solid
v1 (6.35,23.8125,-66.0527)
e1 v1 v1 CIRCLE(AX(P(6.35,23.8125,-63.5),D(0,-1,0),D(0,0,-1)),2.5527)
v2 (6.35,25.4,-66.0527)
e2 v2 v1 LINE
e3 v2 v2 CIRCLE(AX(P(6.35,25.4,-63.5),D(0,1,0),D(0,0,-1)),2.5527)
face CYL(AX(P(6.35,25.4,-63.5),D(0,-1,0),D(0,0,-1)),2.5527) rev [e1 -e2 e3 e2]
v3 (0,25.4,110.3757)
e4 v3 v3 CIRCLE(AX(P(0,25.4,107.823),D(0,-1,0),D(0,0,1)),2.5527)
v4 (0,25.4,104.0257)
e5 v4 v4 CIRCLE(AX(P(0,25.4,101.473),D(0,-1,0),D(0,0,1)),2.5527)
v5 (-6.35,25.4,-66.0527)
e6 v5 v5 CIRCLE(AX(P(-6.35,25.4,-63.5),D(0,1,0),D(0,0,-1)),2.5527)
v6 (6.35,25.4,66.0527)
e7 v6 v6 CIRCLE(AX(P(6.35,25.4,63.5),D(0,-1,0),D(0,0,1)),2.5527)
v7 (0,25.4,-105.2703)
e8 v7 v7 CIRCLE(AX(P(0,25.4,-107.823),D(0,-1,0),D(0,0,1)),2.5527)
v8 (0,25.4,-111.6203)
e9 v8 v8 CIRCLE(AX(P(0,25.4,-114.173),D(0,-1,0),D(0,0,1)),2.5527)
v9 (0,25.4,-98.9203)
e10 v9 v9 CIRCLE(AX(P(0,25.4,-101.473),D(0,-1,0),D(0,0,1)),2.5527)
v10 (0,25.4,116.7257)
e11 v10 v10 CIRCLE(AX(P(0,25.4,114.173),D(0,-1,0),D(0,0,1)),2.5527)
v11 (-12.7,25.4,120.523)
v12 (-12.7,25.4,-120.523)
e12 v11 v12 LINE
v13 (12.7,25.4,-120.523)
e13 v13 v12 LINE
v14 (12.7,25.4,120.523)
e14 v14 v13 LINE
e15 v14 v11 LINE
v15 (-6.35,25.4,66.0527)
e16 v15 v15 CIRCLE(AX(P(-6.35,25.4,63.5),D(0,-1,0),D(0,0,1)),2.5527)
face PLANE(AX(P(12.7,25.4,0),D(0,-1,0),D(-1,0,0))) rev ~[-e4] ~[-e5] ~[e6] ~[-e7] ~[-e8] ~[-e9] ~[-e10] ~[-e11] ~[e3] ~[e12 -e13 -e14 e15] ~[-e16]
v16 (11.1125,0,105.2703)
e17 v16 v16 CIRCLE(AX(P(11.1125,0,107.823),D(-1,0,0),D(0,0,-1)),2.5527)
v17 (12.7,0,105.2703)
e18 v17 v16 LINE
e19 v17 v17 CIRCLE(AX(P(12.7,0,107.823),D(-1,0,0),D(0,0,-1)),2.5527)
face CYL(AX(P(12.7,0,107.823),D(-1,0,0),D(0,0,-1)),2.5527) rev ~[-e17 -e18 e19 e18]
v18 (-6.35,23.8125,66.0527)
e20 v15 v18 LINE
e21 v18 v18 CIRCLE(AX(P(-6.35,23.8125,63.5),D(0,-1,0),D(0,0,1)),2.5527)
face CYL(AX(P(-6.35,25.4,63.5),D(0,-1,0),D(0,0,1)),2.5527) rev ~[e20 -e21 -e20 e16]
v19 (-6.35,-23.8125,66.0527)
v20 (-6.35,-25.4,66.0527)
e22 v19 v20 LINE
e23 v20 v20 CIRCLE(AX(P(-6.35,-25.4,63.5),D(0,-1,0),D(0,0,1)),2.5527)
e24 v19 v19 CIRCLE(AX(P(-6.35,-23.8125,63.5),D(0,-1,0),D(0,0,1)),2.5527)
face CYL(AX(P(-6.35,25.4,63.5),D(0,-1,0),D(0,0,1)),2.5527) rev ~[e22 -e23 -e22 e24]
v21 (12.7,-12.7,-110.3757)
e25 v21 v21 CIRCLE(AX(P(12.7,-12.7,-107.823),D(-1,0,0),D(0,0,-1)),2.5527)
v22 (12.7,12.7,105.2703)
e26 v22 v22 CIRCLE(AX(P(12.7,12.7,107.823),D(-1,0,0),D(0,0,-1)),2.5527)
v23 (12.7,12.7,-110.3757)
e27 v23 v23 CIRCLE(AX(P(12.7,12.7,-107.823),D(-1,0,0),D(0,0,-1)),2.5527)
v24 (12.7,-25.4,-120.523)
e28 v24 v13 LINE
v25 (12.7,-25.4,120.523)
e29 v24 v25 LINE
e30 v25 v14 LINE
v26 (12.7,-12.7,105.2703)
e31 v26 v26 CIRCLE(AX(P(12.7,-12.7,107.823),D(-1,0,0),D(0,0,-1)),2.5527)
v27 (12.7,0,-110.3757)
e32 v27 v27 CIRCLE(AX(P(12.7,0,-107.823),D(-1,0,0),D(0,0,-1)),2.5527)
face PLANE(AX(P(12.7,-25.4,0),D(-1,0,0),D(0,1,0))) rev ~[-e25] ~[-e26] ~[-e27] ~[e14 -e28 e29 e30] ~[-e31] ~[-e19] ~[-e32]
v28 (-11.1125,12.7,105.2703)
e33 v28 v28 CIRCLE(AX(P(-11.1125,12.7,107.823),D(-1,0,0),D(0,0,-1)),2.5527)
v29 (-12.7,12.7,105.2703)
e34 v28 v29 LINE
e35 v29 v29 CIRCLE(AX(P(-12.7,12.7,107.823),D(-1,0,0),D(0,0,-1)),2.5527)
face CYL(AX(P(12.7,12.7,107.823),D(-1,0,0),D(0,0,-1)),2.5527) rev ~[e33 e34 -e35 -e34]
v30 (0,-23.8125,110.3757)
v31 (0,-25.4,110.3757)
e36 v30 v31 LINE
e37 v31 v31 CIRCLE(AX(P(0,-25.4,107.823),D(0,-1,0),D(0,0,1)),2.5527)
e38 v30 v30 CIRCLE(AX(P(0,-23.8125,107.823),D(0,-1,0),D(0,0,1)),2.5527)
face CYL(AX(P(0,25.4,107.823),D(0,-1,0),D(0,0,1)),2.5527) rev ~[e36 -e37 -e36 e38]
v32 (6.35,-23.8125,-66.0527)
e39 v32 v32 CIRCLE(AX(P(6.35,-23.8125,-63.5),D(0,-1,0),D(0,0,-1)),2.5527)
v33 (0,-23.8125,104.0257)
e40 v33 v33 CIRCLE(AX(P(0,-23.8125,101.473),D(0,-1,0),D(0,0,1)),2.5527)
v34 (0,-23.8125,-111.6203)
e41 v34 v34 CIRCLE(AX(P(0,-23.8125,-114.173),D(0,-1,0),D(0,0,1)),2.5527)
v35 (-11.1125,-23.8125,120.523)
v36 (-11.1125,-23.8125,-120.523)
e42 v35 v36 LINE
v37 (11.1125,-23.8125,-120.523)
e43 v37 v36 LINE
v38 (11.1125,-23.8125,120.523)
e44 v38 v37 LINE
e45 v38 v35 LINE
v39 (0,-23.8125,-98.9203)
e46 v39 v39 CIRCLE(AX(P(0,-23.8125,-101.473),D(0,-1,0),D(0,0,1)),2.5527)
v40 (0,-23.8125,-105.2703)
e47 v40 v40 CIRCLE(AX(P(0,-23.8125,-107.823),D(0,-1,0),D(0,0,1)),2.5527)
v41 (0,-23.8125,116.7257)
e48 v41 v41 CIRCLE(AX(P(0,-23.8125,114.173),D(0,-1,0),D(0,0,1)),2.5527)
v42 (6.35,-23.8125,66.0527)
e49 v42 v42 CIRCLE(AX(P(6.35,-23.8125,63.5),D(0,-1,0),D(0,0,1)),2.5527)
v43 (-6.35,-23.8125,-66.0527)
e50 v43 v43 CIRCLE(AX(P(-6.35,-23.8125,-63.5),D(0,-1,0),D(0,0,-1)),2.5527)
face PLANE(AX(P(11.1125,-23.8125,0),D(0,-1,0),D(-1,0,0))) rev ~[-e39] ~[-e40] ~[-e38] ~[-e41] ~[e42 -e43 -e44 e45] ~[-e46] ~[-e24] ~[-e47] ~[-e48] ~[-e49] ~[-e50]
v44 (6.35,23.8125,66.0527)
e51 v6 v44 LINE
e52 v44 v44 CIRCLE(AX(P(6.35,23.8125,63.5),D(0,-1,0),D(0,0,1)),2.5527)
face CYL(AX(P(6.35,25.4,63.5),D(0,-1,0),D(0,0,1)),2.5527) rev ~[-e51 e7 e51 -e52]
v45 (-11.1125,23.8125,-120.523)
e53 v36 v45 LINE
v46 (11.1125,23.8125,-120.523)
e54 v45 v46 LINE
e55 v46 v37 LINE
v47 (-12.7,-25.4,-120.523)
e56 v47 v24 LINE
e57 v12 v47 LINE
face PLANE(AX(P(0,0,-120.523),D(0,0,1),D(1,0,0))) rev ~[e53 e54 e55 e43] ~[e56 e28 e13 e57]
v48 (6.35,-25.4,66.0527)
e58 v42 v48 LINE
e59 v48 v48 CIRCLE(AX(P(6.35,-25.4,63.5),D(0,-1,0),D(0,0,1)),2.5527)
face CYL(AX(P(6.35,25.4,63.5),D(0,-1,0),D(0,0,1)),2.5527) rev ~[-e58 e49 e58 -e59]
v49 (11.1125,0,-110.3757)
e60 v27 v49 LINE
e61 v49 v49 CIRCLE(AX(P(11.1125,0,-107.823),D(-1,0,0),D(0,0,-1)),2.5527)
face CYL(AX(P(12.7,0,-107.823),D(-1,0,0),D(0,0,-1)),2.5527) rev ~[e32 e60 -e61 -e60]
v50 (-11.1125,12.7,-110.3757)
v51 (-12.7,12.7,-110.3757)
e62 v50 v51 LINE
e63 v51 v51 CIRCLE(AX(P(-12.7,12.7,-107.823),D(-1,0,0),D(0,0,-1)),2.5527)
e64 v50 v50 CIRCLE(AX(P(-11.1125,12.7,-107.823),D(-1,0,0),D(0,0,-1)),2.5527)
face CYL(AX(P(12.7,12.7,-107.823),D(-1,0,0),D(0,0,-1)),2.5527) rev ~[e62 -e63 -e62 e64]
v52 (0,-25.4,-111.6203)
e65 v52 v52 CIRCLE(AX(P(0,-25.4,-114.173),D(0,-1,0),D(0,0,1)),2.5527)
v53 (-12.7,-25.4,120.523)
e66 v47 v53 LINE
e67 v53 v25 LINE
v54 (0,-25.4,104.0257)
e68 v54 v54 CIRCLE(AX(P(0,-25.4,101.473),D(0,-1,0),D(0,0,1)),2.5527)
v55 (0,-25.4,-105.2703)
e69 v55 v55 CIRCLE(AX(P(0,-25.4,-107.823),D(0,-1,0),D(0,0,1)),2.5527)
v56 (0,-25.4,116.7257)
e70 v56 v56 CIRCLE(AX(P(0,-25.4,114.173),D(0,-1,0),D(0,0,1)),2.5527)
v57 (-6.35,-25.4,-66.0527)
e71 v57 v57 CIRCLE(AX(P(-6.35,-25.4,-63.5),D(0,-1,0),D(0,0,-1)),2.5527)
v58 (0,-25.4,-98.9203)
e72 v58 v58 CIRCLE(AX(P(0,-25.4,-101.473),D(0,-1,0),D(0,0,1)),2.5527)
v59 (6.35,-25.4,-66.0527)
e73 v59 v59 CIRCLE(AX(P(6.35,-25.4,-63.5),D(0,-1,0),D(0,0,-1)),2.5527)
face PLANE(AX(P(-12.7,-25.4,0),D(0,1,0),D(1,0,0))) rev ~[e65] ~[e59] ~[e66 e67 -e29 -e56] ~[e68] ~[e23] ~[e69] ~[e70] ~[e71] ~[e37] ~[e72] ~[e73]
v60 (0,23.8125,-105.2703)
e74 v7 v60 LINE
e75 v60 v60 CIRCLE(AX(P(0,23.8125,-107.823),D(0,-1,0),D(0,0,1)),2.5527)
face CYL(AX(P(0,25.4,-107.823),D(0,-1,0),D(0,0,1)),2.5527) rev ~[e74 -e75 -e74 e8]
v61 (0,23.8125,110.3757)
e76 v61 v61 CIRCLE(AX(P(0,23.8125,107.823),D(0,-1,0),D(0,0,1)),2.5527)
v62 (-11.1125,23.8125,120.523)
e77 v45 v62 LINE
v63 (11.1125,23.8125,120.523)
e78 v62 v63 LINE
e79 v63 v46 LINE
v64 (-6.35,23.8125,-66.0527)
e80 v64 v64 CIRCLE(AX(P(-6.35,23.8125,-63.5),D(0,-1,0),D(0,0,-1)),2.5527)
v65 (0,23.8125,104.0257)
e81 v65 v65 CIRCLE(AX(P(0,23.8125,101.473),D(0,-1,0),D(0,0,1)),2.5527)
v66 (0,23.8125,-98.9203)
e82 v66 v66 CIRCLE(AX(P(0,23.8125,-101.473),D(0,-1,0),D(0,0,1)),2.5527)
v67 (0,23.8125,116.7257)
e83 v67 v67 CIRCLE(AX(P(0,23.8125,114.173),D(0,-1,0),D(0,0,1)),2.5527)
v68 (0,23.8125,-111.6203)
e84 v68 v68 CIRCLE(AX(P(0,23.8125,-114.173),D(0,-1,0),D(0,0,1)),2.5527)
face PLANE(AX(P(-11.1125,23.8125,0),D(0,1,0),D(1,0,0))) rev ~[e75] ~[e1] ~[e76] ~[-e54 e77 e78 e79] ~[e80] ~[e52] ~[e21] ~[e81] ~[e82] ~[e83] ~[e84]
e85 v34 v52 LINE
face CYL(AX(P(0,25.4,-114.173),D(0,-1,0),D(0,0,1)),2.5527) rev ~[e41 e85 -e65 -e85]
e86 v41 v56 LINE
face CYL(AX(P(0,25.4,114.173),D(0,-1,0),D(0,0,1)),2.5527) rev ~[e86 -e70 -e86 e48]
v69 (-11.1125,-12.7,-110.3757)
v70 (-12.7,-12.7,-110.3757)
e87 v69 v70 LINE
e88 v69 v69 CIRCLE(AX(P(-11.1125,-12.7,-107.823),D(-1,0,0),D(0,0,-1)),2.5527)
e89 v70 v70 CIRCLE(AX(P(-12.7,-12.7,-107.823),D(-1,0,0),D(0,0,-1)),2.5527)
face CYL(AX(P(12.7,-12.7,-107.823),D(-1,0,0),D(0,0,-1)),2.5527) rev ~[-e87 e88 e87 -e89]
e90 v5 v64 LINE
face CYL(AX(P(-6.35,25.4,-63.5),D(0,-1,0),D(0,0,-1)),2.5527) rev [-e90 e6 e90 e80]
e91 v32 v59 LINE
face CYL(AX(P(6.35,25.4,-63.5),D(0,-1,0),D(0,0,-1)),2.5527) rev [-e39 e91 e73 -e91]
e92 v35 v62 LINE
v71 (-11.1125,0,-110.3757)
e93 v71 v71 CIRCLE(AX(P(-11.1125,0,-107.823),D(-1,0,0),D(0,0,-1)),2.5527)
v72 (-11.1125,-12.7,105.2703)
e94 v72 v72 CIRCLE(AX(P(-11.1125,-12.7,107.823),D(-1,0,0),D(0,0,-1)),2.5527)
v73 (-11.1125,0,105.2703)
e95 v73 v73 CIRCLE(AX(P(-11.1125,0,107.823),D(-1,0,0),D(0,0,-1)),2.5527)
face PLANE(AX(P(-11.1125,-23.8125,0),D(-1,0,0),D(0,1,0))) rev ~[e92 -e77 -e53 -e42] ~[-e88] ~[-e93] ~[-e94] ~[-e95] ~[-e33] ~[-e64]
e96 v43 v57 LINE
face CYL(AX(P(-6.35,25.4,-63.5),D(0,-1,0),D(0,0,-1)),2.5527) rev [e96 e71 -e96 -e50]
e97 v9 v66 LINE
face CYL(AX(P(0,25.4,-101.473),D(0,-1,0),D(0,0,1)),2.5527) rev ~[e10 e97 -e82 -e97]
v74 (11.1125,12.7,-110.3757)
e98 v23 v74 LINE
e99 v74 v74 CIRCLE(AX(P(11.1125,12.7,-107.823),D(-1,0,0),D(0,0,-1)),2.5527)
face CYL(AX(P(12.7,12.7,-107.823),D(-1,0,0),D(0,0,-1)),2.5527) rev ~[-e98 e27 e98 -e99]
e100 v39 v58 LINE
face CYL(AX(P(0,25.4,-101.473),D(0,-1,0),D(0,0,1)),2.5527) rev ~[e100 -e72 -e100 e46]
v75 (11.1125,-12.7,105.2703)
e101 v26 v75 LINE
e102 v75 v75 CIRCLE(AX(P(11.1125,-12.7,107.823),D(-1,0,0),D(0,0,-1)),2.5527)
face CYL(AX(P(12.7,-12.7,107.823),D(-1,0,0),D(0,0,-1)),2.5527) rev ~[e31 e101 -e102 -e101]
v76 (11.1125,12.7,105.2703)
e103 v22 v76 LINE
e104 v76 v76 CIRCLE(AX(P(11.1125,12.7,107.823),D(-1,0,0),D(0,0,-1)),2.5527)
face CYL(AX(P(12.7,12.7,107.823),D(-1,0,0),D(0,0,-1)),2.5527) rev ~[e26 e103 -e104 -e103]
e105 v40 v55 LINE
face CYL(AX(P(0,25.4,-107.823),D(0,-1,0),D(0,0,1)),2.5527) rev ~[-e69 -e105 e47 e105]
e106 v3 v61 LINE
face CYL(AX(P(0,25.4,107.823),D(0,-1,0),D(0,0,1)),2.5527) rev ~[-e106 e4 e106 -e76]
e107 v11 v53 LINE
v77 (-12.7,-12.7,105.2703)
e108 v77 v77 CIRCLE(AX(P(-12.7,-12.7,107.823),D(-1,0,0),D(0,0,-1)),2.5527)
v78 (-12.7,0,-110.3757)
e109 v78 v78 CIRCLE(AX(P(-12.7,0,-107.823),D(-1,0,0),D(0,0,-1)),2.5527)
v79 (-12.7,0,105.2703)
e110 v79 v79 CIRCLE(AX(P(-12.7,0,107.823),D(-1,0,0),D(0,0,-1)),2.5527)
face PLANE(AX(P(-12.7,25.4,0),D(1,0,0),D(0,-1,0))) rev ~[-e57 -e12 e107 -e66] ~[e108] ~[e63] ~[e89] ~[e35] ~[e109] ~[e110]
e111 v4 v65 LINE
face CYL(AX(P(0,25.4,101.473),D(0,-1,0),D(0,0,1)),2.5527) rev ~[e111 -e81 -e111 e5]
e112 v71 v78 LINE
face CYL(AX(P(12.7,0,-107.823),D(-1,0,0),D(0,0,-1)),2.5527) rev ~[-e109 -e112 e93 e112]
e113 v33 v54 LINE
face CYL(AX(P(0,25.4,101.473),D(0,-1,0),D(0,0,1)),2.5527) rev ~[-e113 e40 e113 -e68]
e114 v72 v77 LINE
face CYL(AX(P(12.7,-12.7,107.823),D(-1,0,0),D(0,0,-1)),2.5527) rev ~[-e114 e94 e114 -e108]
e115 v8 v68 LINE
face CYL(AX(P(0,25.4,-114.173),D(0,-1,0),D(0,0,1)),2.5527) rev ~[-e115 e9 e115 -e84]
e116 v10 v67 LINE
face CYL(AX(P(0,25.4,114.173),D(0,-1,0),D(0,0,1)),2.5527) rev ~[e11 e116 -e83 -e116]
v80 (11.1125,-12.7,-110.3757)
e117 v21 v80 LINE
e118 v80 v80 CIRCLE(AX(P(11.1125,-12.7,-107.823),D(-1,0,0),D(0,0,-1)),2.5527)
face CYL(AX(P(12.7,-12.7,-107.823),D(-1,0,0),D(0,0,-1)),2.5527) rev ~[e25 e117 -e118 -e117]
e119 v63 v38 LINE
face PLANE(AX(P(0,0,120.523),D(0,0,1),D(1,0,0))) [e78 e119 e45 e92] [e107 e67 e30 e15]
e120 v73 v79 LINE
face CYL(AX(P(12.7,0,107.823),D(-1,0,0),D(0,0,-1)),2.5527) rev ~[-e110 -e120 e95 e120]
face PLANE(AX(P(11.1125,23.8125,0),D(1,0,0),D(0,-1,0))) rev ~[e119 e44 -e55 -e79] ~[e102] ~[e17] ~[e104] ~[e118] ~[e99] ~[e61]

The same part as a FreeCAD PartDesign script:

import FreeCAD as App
import Part
import Sketcher
Q = App.Units.Quantity

doc = App.newDocument("Part")
params = doc.addObject("Spreadsheet::Sheet", "Params")
for row, (alias, value) in enumerate([
    ("sketch1_width", "1 in"),
    ("sketch1_height", "2 in"),
    ("pad1_length", "9.49 in"),
    ("sketch2_diameter", "0.201 in"),
    ("hole_diameter", "0.201 in"),
    ("sketch3_diameter", "0.201 in"),
    ("hole2_diameter", "0.201 in"),
    ("sketch4_diameter", "0.201 in"),
    ("hole3_diameter", "0.201 in"),
], start=1):
    params.set(f"A{row}", alias)
    params.set(f"B{row}", "=" + value)
    params.setAlias(f"B{row}", alias)

body = doc.addObject("PartDesign::Body", "Body")

# Sketch on XY plane
sketch1 = doc.addObject("Sketcher::SketchObject", "Sketch")
body.addObject(sketch1)
sketch1.AttachmentSupport = (doc.XY_Plane, [""])
sketch1.MapMode = "FlatFace"
sketch1.addGeometry(Part.LineSegment(App.Vector(-13, 25, 0), App.Vector(-13, -25, 0)), False)
sketch1.addGeometry(Part.LineSegment(App.Vector(-13, -25, 0), App.Vector(13, -25, 0)), False)
sketch1.addGeometry(Part.LineSegment(App.Vector(13, -25, 0), App.Vector(13, 25, 0)), False)
sketch1.addGeometry(Part.LineSegment(App.Vector(13, 25, 0), App.Vector(-13, 25, 0)), False)
sketch1.addGeometry(Part.LineSegment(App.Vector(-11, -24, 0), App.Vector(-11, 24, 0)), False)
sketch1.addGeometry(Part.LineSegment(App.Vector(-11, 24, 0), App.Vector(11, 24, 0)), False)
sketch1.addGeometry(Part.LineSegment(App.Vector(11, 24, 0), App.Vector(11, -24, 0)), False)
sketch1.addGeometry(Part.LineSegment(App.Vector(11, -24, 0), App.Vector(-11, -24, 0)), False)
sketch1.addConstraint(Sketcher.Constraint("Coincident", 0, 2, 1, 1))
sketch1.addConstraint(Sketcher.Constraint("Coincident", 1, 2, 2, 1))
sketch1.addConstraint(Sketcher.Constraint("Coincident", 2, 2, 3, 1))
sketch1.addConstraint(Sketcher.Constraint("Coincident", 3, 2, 0, 1))
sketch1.addConstraint(Sketcher.Constraint("Coincident", 4, 2, 5, 1))
sketch1.addConstraint(Sketcher.Constraint("Coincident", 5, 2, 6, 1))
sketch1.addConstraint(Sketcher.Constraint("Coincident", 6, 2, 7, 1))
sketch1.addConstraint(Sketcher.Constraint("Coincident", 7, 2, 4, 1))
sketch1.addConstraint(Sketcher.Constraint("Vertical", 0))
sketch1.addConstraint(Sketcher.Constraint("Horizontal", 1))
sketch1.addConstraint(Sketcher.Constraint("Vertical", 2))
sketch1.addConstraint(Sketcher.Constraint("Horizontal", 3))
sketch1.addConstraint(Sketcher.Constraint("Vertical", 4))
sketch1.addConstraint(Sketcher.Constraint("Horizontal", 5))
sketch1.addConstraint(Sketcher.Constraint("Vertical", 6))
sketch1.addConstraint(Sketcher.Constraint("Horizontal", 7))
sketch1.addConstraint(Sketcher.Constraint("Symmetric", 0, 2, 2, 2, -1, 1))
sketch1.addConstraint(Sketcher.Constraint("Symmetric", 4, 2, 6, 2, -1, 1))
sketch1.addConstraint(Sketcher.Constraint("DistanceX", 1, 1, 1, 2, Q("1 in")))
sketch1.addConstraint(Sketcher.Constraint("DistanceY", 0, 2, 0, 1, Q("2 in")))
sketch1.addConstraint(Sketcher.Constraint("DistanceX", 3, 2, 4, 2, Q("0.0625 in")))
sketch1.addConstraint(Sketcher.Constraint("DistanceY", 4, 2, 3, 2, Q("0.0625 in")))
sketch1.setExpression("Constraints[18]", "Params.sketch1_width")
sketch1.setExpression("Constraints[19]", "Params.sketch1_height")
pad1 = doc.addObject("PartDesign::Pad", "Pad")
body.addObject(pad1)
pad1.Profile = sketch1
pad1.setExpression("Length", "Params.pad1_length")
pad1.Midplane = True

# Sketch on YZ plane
sketch2 = doc.addObject("Sketcher::SketchObject", "Sketch001")
body.addObject(sketch2)
sketch2.AttachmentSupport = (doc.YZ_Plane, [""])
sketch2.MapMode = "FlatFace"
sketch2.AttachmentOffset = App.Placement(App.Vector(0, 0, 0.5 * 25.4), App.Rotation())
sketch2.addGeometry(Part.Circle(App.Vector(12.7, 107.8, 0), App.Vector(0, 0, 1), 2.6), False)
sketch2.addGeometry(Part.Circle(App.Vector(-12.7, 107.8, 0), App.Vector(0, 0, 1), 2.6), False)
sketch2.addGeometry(Part.Circle(App.Vector(0, 107.8, 0), App.Vector(0, 0, 1), 2.6), False)
sketch2.addGeometry(Part.Circle(App.Vector(12.7, -107.8, 0), App.Vector(0, 0, 1), 2.6), False)
sketch2.addGeometry(Part.Circle(App.Vector(0, -107.8, 0), App.Vector(0, 0, 1), 2.6), False)
sketch2.addGeometry(Part.Circle(App.Vector(-12.7, -107.8, 0), App.Vector(0, 0, 1), 2.6), False)
sketch2.addConstraint(Sketcher.Constraint("Equal", 0, 1))
sketch2.addConstraint(Sketcher.Constraint("Equal", 1, 2))
sketch2.addConstraint(Sketcher.Constraint("Equal", 2, 3))
sketch2.addConstraint(Sketcher.Constraint("Equal", 3, 4))
sketch2.addConstraint(Sketcher.Constraint("Equal", 4, 5))
sketch2.addConstraint(Sketcher.Constraint("Symmetric", 1, 3, 3, 3, -1, 1))
sketch2.addConstraint(Sketcher.Constraint("Symmetric", 2, 3, 4, 3, -1, 1))
sketch2.addConstraint(Sketcher.Constraint("Symmetric", 0, 3, 5, 3, -1, 1))
sketch2.addConstraint(Sketcher.Constraint("Symmetric", 0, 3, 1, 3, -2))
sketch2.addConstraint(Sketcher.Constraint("PointOnObject", 2, 3, -2))
sketch2.addConstraint(Sketcher.Constraint("Horizontal", 1, 3, 2, 3))
sketch2.addConstraint(Sketcher.Constraint("Diameter", 0, Q("0.201 in")))
sketch2.addConstraint(Sketcher.Constraint("DistanceX", 1, 3, 0, 3, Q("1 in")))
sketch2.addConstraint(Sketcher.Constraint("DistanceY", 3, 3, 0, 3, Q("8.49 in")))
sketch2.setExpression("Constraints[11]", "Params.sketch2_diameter")
doc.recompute()
hole = doc.addObject("PartDesign::Hole", "Hole")
body.addObject(hole)
hole.Profile = sketch2
hole.ThreadType = "None"
hole.setExpression("Diameter", "Params.hole_diameter")
hole.DepthType = "ThroughAll"

# Sketch on XZ plane
sketch3 = doc.addObject("Sketcher::SketchObject", "Sketch002")
body.addObject(sketch3)
sketch3.AttachmentSupport = (doc.XZ_Plane, [""])
sketch3.MapMode = "FlatFace"
sketch3.AttachmentOffset = App.Placement(App.Vector(0, 0, -1 * 25.4), App.Rotation())
sketch3.addGeometry(Part.Circle(App.Vector(0, 114.2, 0), App.Vector(0, 0, 1), 2.6), False)
sketch3.addGeometry(Part.Circle(App.Vector(0, 107.8, 0), App.Vector(0, 0, 1), 2.6), False)
sketch3.addGeometry(Part.Circle(App.Vector(0, 101.5, 0), App.Vector(0, 0, 1), 2.6), False)
sketch3.addGeometry(Part.Circle(App.Vector(0, -101.5, 0), App.Vector(0, 0, 1), 2.6), False)
sketch3.addGeometry(Part.Circle(App.Vector(0, -107.8, 0), App.Vector(0, 0, 1), 2.6), False)
sketch3.addGeometry(Part.Circle(App.Vector(0, -114.2, 0), App.Vector(0, 0, 1), 2.6), False)
sketch3.addConstraint(Sketcher.Constraint("Equal", 0, 1))
sketch3.addConstraint(Sketcher.Constraint("Equal", 1, 2))
sketch3.addConstraint(Sketcher.Constraint("Equal", 2, 3))
sketch3.addConstraint(Sketcher.Constraint("Equal", 3, 4))
sketch3.addConstraint(Sketcher.Constraint("Equal", 4, 5))
sketch3.addConstraint(Sketcher.Constraint("Symmetric", 2, 3, 3, 3, -1, 1))
sketch3.addConstraint(Sketcher.Constraint("Symmetric", 1, 3, 4, 3, -1, 1))
sketch3.addConstraint(Sketcher.Constraint("Symmetric", 0, 3, 5, 3, -1, 1))
sketch3.addConstraint(Sketcher.Constraint("PointOnObject", 0, 3, -2))
sketch3.addConstraint(Sketcher.Constraint("PointOnObject", 1, 3, -2))
sketch3.addConstraint(Sketcher.Constraint("PointOnObject", 2, 3, -2))
sketch3.addConstraint(Sketcher.Constraint("Diameter", 0, Q("0.201 in")))
sketch3.addConstraint(Sketcher.Constraint("DistanceY", 2, 3, 0, 3, Q("0.5 in")))
sketch3.addConstraint(Sketcher.Constraint("DistanceY", 1, 3, 0, 3, Q("0.25 in")))
sketch3.addConstraint(Sketcher.Constraint("DistanceY", 3, 3, 2, 3, Q("7.99 in")))
sketch3.setExpression("Constraints[11]", "Params.sketch3_diameter")
doc.recompute()
hole2 = doc.addObject("PartDesign::Hole", "Hole001")
body.addObject(hole2)
hole2.Profile = sketch3
hole2.ThreadType = "None"
hole2.setExpression("Diameter", "Params.hole2_diameter")
hole2.DepthType = "ThroughAll"
hole2.Reversed = True

# Sketch on XZ plane
sketch4 = doc.addObject("Sketcher::SketchObject", "Sketch003")
body.addObject(sketch4)
sketch4.AttachmentSupport = (doc.XZ_Plane, [""])
sketch4.MapMode = "FlatFace"
sketch4.AttachmentOffset = App.Placement(App.Vector(0, 0, -1 * 25.4), App.Rotation())
sketch4.addGeometry(Part.Circle(App.Vector(-6.3, 63.5, 0), App.Vector(0, 0, 1), 2.6), False)
sketch4.addGeometry(Part.Circle(App.Vector(6.3, 63.5, 0), App.Vector(0, 0, 1), 2.6), False)
sketch4.addConstraint(Sketcher.Constraint("Equal", 0, 1))
sketch4.addConstraint(Sketcher.Constraint("Symmetric", 0, 3, 1, 3, -2))
sketch4.addConstraint(Sketcher.Constraint("Diameter", 0, Q("0.201 in")))
sketch4.addConstraint(Sketcher.Constraint("DistanceY", -1, 1, 0, 3, Q("2.5 in")))
sketch4.addConstraint(Sketcher.Constraint("DistanceX", 0, 3, 1, 3, Q("0.5 in")))
sketch4.setExpression("Constraints[2]", "Params.sketch4_diameter")
doc.recompute()
hole3 = doc.addObject("PartDesign::Hole", "Hole002")
body.addObject(hole3)
hole3.Profile = sketch4
hole3.ThreadType = "None"
hole3.setExpression("Diameter", "Params.hole3_diameter")
hole3.DepthType = "ThroughAll"
hole3.Reversed = True
doc.recompute()

mirrored = doc.addObject("PartDesign::Mirrored", "Mirrored")
body.addObject(mirrored)
mirrored.Originals = [hole3]
mirrored.MirrorPlane = (doc.XY_Plane, [""])
body.Tip = mirrored

doc.recompute()
